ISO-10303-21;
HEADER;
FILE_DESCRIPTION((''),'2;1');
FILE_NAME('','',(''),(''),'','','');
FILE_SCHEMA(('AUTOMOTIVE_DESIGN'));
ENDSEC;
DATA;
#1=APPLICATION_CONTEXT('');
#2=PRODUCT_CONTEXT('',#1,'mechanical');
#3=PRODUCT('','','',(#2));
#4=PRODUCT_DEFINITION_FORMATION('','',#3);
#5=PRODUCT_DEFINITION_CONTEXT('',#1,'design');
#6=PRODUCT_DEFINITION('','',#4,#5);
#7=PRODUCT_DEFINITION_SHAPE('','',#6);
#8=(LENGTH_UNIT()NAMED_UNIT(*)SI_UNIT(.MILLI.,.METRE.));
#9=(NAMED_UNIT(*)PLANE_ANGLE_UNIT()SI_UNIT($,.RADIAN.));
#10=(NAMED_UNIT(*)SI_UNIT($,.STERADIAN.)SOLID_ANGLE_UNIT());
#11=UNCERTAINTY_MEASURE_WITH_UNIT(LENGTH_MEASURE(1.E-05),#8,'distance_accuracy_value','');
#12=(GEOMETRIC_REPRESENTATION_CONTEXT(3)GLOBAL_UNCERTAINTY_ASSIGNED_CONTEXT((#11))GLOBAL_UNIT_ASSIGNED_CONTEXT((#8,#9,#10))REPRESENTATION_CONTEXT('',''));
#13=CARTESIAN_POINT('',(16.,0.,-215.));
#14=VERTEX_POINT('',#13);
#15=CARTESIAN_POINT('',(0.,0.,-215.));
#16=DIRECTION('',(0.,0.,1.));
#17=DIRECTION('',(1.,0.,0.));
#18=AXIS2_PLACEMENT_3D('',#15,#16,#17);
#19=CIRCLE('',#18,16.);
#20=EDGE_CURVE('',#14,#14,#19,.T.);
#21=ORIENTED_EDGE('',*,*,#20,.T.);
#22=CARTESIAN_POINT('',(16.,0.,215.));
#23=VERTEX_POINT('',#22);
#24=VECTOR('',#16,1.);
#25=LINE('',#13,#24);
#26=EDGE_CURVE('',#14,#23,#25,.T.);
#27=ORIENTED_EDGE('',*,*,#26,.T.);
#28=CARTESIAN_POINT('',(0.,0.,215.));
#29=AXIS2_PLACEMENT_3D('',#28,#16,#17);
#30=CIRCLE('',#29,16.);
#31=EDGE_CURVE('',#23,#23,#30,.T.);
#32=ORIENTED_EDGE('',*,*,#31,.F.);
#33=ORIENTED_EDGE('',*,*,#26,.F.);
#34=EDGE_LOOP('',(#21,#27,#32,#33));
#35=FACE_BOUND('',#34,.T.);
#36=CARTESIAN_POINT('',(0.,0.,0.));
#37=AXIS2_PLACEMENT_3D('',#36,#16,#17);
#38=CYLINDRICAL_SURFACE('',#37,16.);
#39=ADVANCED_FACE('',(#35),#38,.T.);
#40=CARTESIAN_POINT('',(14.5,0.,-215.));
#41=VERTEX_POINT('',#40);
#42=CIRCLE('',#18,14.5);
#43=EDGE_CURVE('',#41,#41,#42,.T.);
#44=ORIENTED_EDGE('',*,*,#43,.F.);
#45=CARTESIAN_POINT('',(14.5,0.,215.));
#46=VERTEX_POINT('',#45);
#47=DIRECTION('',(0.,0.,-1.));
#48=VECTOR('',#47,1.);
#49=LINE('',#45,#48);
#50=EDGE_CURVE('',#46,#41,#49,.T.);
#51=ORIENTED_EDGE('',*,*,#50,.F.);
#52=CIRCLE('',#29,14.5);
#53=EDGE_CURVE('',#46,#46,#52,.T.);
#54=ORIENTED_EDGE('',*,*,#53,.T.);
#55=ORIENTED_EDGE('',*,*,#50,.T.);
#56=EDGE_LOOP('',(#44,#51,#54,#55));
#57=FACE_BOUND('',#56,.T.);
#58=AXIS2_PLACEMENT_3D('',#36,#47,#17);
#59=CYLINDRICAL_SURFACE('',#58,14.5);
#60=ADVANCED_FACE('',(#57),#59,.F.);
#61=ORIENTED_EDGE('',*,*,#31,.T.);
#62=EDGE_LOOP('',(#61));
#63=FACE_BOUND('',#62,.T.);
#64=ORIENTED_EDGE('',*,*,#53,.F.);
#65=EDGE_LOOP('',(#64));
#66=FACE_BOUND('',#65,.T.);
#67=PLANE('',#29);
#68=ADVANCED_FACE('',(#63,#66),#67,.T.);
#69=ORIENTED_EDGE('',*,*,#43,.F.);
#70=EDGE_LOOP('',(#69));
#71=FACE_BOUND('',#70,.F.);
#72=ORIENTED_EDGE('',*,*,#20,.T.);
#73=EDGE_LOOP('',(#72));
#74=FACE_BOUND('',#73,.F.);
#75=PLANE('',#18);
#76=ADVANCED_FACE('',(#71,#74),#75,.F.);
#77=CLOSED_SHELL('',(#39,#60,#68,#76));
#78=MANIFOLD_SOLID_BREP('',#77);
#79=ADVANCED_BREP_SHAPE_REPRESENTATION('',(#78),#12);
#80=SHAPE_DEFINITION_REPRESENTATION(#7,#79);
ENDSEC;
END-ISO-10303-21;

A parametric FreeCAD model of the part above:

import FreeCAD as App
import Part
import Sketcher

doc = App.newDocument("Part")
body = doc.addObject("PartDesign::Body", "Body")

sketch1 = doc.addObject("Sketcher::SketchObject", "Sketch")
body.addObject(sketch1)
sketch1.AttachmentSupport = (doc.XY_Plane, [""])
sketch1.MapMode = "FlatFace"
sketch1.addGeometry([
    Part.Circle(App.Vector(0, 0, 0), App.Vector(0, 0, 1), 16),
    Part.Circle(App.Vector(0, 0, 0), App.Vector(0, 0, 1), 14),
], False)
sketch1.addConstraint([
    Sketcher.Constraint("Coincident", 0, 3, -1, 1),
    Sketcher.Constraint("Coincident", 1, 3, -1, 1),
    Sketcher.Constraint("Diameter", 0, 32.0),
    Sketcher.Constraint("Diameter", 1, 29.0),
])
pad1 = doc.addObject("PartDesign::Pad", "Pad")
body.addObject(pad1)
pad1.Profile = sketch1
pad1.Length = 430
pad1.Midplane = True

doc.recompute()
